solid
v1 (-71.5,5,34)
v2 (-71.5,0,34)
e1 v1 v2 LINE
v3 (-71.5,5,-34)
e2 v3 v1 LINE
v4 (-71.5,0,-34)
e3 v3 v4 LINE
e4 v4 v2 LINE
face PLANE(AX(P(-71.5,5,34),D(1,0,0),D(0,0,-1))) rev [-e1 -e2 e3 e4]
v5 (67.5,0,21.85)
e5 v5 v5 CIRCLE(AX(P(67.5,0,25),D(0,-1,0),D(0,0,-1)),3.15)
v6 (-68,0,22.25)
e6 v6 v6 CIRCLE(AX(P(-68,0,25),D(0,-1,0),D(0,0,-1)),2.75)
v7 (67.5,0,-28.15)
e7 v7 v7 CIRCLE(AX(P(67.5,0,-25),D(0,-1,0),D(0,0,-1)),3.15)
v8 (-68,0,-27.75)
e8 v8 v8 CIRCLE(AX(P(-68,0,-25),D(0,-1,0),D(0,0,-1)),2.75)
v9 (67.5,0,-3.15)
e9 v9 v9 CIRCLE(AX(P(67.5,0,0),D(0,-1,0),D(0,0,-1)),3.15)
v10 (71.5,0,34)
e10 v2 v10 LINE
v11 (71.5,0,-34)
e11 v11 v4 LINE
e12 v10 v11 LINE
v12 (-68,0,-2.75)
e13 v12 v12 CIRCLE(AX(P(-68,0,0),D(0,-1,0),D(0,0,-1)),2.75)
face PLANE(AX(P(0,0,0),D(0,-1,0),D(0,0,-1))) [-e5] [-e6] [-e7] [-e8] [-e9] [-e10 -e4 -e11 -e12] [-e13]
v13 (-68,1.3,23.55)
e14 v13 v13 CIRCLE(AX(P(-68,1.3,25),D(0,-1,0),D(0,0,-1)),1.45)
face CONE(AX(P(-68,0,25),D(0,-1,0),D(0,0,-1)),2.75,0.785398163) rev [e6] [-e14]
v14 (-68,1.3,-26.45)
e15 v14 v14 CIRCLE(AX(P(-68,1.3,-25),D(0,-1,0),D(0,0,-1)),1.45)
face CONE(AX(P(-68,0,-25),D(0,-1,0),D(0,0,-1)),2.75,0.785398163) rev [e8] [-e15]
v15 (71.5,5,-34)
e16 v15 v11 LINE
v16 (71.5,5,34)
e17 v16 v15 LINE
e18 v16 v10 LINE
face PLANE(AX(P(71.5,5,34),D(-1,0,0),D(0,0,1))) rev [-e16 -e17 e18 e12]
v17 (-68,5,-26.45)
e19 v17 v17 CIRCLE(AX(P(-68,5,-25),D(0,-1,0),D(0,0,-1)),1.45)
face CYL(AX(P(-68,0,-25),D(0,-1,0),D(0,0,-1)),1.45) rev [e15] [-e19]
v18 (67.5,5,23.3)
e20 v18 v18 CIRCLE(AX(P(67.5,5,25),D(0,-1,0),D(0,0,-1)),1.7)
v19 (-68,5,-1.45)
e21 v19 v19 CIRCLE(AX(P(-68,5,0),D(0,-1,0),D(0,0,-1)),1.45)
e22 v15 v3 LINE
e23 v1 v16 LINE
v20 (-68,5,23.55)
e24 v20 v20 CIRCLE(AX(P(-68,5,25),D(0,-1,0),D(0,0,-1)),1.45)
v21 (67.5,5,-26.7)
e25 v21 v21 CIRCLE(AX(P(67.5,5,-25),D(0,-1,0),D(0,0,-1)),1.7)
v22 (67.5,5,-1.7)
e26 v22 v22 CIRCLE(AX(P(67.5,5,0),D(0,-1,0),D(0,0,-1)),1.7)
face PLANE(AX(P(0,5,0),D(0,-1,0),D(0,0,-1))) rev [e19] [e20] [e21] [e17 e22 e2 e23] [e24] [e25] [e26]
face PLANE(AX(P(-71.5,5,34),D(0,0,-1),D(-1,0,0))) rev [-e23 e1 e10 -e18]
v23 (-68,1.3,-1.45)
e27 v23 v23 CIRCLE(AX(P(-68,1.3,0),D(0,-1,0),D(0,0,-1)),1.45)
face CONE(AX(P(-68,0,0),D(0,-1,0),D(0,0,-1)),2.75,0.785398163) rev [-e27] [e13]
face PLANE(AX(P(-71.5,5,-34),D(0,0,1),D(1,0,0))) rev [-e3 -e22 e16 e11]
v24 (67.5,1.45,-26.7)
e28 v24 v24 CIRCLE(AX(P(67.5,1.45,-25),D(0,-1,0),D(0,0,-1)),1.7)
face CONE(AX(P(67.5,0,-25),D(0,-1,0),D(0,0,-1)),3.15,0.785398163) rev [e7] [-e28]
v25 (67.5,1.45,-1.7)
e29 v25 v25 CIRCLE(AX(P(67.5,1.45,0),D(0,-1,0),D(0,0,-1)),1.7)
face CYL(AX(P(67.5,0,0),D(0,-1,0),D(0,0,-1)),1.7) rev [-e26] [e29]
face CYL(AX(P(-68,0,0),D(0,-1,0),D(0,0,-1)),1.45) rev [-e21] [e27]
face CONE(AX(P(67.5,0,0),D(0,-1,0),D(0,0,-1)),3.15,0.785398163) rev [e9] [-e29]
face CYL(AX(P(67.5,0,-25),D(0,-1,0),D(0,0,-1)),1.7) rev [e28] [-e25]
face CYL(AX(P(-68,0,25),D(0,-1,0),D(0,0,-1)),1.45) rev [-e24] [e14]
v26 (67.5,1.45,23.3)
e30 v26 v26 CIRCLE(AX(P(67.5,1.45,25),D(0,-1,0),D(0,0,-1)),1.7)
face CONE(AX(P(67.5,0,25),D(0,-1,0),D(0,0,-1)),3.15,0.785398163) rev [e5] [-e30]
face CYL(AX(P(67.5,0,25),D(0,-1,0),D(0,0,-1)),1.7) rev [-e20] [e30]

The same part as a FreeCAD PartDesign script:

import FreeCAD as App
import Part
import Sketcher
from FreeCAD import Vector

doc = App.newDocument("Part")
body = doc.addObject("PartDesign::Body", "Body")

# Sketch on XZ plane
sketch1 = body.newObject("Sketcher::SketchObject", "Sketch")
sketch1.AttachmentSupport = (doc.getObject("XZ_Plane"), [""])
sketch1.MapMode = "FlatFace"
sketch1.addGeometry([
    Part.LineSegment(Vector(-72, -34, 0), Vector(-72, 34, 0)),
    Part.LineSegment(Vector(-72, 34, 0), Vector(72, 34, 0)),
    Part.LineSegment(Vector(72, 34, 0), Vector(72, -34, 0)),
    Part.LineSegment(Vector(72, -34, 0), Vector(-72, -34, 0)),
], False)
sketch1.addConstraint([
    Sketcher.Constraint("Coincident", 0, 2, 1, 1),
    Sketcher.Constraint("Coincident", 1, 2, 2, 1),
    Sketcher.Constraint("Coincident", 2, 2, 3, 1),
    Sketcher.Constraint("Coincident", 3, 2, 0, 1),
    Sketcher.Constraint("Vertical", 0),
    Sketcher.Constraint("Horizontal", 1),
    Sketcher.Constraint("Vertical", 2),
    Sketcher.Constraint("Horizontal", 3),
    Sketcher.Constraint("Symmetric", 0, 2, 2, 2, -1, 1),
    Sketcher.Constraint("DistanceX", 1, 1, 1, 2, 143.0),
    Sketcher.Constraint("DistanceY", 0, 1, 0, 2, 68.0),
])
pad1 = body.newObject("PartDesign::Pad", "Pad")
pad1.Profile = sketch1
pad1.Length = 5
pad1.Reversed = True

# Sketch on XZ plane
sketch2 = body.newObject("Sketcher::SketchObject", "Sketch001")
sketch2.AttachmentSupport = (doc.getObject("XZ_Plane"), [""])
sketch2.MapMode = "FlatFace"
sketch2.addGeometry([
    Part.Circle(Vector(-68, -25, 0), Vector(0, 0, 1), 1.4),
    Part.Circle(Vector(-68, 0, 0), Vector(0, 0, 1), 1.4),
    Part.Circle(Vector(-68, 25, 0), Vector(0, 0, 1), 1.4),
], False)
sketch2.addConstraint([
    Sketcher.Constraint("Equal", 0, 1),
    Sketcher.Constraint("Equal", 1, 2),
    Sketcher.Constraint("Symmetric", 0, 3, 2, 3, -1),
    Sketcher.Constraint("PointOnObject", 1, 3, -1),
    Sketcher.Constraint("Vertical", 0, 3, 1, 3),
    Sketcher.Constraint("Diameter", 0, 2.9),
    Sketcher.Constraint("DistanceX", 0, 3, -1, 1, 68.0),
    Sketcher.Constraint("DistanceY", 0, 3, -1, 1, 25.0),
])
doc.recompute()
hole = body.newObject("PartDesign::Hole", "Hole")
hole.Profile = sketch2
hole.ThreadType = "None"
hole.Diameter = 2.9
hole.DepthType = "ThroughAll"
hole.HoleCutType = "Countersink"
hole.HoleCutDiameter = 5.5
hole.HoleCutCountersinkAngle = 90

# Sketch on XZ plane
sketch3 = body.newObject("Sketcher::SketchObject", "Sketch002")
sketch3.AttachmentSupport = (doc.getObject("XZ_Plane"), [""])
sketch3.MapMode = "FlatFace"
sketch3.addGeometry([
    Part.Circle(Vector(67.5, -25, 0), Vector(0, 0, 1), 1.7),
    Part.Circle(Vector(67.5, 0, 0), Vector(0, 0, 1), 1.7),
    Part.Circle(Vector(67.5, 25, 0), Vector(0, 0, 1), 1.7),
], False)
sketch3.addConstraint([
    Sketcher.Constraint("Equal", 0, 1),
    Sketcher.Constraint("Equal", 1, 2),
    Sketcher.Constraint("Symmetric", 0, 3, 2, 3, -1),
    Sketcher.Constraint("PointOnObject", 1, 3, -1),
    Sketcher.Constraint("Vertical", 0, 3, 1, 3),
    Sketcher.Constraint("Diameter", 0, 3.4),
    Sketcher.Constraint("DistanceY", 0, 3, -1, 1, 25.0),
    Sketcher.Constraint("DistanceX", -1, 1, 0, 3, 67.5),
])
doc.recompute()
hole2 = body.newObject("PartDesign::Hole", "Hole001")
hole2.Profile = sketch3
hole2.ThreadType = "None"
hole2.Diameter = 3.4
hole2.DepthType = "ThroughAll"
hole2.HoleCutType = "Countersink"
hole2.HoleCutDiameter = 6.3
hole2.HoleCutCountersinkAngle = 90

doc.recompute()
